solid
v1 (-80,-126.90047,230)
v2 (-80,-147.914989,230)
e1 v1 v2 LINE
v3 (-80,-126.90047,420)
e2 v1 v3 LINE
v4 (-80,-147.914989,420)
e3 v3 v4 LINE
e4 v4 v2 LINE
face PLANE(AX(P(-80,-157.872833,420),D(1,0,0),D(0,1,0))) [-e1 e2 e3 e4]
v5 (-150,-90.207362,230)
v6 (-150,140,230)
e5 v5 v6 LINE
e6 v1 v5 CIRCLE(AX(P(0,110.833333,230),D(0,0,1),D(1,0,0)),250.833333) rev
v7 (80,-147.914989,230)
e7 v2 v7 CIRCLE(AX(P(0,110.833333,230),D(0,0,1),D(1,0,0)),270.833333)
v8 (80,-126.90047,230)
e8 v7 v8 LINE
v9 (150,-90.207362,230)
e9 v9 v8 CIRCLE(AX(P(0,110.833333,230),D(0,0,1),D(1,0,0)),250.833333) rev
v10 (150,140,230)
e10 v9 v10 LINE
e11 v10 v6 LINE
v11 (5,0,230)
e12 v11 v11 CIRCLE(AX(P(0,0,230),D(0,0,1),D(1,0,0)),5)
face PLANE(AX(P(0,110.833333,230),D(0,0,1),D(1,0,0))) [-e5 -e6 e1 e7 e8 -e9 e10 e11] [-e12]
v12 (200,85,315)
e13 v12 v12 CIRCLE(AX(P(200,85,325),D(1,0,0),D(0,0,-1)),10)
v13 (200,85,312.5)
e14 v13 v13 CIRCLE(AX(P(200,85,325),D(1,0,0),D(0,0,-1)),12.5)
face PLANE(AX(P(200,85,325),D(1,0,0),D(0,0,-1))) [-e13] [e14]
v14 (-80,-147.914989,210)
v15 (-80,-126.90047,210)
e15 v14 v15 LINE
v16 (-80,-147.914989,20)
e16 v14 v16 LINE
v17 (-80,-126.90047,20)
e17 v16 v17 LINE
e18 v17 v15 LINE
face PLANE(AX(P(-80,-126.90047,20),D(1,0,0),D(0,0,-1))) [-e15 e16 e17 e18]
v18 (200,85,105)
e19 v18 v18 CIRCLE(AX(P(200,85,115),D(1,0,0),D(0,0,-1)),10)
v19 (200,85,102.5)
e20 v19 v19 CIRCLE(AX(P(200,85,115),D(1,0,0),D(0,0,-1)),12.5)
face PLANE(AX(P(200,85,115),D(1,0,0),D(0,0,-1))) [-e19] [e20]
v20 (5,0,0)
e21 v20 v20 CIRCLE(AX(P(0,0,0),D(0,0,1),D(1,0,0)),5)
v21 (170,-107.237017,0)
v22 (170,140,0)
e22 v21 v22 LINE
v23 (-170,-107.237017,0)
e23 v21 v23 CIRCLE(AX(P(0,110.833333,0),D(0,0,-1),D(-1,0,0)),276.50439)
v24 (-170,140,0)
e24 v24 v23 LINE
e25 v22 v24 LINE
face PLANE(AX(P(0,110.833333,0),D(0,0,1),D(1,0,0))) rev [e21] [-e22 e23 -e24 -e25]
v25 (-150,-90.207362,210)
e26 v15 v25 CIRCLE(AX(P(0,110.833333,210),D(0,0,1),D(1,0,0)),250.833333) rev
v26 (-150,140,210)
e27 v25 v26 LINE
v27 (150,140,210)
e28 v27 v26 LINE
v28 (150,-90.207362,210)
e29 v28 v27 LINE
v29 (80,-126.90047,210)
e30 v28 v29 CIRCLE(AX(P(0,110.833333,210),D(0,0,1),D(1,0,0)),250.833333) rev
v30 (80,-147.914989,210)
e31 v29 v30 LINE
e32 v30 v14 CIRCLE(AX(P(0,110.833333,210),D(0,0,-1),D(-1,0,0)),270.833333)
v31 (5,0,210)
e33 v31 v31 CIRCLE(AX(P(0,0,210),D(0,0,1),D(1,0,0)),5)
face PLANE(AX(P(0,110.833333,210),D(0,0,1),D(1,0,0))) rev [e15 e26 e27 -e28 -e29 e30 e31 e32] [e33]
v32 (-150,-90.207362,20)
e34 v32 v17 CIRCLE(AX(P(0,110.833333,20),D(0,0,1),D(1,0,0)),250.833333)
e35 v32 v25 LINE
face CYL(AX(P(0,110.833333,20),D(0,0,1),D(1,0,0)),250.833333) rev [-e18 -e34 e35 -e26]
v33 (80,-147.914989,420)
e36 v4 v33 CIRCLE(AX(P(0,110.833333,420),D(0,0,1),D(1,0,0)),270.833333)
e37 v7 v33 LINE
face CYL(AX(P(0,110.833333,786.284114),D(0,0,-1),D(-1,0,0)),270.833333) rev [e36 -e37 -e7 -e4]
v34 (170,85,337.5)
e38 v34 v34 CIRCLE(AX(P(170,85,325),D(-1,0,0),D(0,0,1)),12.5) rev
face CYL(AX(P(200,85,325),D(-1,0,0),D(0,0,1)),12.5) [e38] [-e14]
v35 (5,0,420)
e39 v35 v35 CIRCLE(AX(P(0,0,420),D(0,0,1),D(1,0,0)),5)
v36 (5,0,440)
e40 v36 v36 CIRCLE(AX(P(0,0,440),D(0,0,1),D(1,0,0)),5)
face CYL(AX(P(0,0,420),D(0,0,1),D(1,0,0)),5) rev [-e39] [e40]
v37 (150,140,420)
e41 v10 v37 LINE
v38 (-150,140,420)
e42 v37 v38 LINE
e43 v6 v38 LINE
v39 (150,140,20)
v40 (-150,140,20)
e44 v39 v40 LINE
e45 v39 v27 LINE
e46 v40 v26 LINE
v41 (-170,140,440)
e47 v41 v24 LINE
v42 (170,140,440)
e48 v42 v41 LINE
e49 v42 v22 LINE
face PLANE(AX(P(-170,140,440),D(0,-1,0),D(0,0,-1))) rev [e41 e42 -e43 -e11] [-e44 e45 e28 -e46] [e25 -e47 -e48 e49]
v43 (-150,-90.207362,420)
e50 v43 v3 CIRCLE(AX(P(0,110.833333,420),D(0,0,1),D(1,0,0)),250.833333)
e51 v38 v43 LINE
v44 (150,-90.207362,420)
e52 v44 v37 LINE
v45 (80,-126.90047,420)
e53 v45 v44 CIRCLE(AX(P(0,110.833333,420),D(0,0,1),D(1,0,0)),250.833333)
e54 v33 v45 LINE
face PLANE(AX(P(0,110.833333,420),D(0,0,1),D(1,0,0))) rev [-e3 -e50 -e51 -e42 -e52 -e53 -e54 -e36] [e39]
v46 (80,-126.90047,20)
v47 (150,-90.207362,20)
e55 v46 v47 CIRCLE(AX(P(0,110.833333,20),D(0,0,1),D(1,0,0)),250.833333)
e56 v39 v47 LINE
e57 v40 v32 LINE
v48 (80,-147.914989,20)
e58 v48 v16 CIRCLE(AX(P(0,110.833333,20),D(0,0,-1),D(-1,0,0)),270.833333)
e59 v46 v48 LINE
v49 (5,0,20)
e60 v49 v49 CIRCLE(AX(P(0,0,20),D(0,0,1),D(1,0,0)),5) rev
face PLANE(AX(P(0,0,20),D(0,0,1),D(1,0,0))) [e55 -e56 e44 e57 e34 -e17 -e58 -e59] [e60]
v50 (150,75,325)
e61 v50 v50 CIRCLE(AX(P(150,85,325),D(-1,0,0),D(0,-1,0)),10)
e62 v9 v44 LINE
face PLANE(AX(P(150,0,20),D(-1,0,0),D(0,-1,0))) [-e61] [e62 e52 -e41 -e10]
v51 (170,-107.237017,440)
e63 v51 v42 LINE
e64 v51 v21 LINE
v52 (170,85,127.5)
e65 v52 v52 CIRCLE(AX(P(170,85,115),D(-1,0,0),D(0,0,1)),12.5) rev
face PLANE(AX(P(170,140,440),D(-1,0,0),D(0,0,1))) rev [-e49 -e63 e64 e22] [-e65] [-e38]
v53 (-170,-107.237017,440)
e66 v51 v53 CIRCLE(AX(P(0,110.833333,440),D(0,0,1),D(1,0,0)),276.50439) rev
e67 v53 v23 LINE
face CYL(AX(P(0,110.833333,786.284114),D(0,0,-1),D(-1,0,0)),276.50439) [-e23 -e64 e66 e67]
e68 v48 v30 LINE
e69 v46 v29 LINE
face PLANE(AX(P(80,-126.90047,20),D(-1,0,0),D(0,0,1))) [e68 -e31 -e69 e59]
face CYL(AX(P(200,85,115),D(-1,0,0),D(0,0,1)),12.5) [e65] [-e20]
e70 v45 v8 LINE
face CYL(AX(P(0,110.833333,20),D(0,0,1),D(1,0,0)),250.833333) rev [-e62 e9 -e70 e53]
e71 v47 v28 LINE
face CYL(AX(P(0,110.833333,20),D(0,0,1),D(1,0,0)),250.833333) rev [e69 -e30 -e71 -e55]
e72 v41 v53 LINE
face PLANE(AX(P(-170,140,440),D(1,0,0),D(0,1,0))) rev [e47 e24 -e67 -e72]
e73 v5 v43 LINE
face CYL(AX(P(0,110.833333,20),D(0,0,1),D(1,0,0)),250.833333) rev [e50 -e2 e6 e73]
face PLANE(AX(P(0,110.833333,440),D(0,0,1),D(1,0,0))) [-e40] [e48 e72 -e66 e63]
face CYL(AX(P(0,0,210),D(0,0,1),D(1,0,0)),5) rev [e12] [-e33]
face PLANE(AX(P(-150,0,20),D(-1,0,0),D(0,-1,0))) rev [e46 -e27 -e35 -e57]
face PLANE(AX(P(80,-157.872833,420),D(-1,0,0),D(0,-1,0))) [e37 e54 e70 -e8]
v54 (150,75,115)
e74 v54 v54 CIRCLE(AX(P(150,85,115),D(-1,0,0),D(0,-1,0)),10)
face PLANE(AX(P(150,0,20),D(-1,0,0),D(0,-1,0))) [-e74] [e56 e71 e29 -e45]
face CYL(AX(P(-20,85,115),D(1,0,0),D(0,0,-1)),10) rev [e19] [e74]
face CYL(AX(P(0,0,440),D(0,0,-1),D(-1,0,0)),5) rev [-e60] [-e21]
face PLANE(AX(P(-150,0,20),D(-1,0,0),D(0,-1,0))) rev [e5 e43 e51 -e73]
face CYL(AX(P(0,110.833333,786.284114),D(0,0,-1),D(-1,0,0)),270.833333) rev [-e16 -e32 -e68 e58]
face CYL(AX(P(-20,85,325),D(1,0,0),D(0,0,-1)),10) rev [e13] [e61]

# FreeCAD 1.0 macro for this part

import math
import FreeCAD as App
import Part
import Sketcher

V = App.Vector
Q = App.Units.Quantity

doc = App.newDocument("Part")
params = doc.addObject("Spreadsheet::Sheet", "Params")
for row, (alias, value) in enumerate([
    ("sketch1_diameter", "10 mm"),
    ("sketch1_width", "340 mm"),
    ("sketch1_height", "240 mm"),
    ("pad1_length", "440 mm"),
    ("sketch2_diameter", "10 mm"),
    ("sketch2_width", "300 mm"),
    ("pocket1_length", "420 mm"),
    ("sketch3_diameter", "10 mm"),
    ("sketch3_width", "300 mm"),
    ("pad2_length", "20 mm"),
    ("sketch4_diameter", "10 mm"),
    ("sketch4_width", "340 mm"),
    ("sketch4_height", "240 mm"),
    ("pad3_length", "20 mm"),
    ("pocket2_length", "190 mm"),
    ("pocket3_length", "190 mm"),
    ("sketch7_diameter", "20 mm"),
    ("pocket4_length", "190 mm"),
    ("sketch8_diameter", "25 mm"),
    ("sketch8_diameter2", "20 mm"),
    ("pad4_length", "30 mm"),
    ("pad5_length", "440 mm"),
], start=1):
    params.set(f"A{row}", alias)
    params.set(f"B{row}", "=" + value)
    params.setAlias(f"B{row}", alias)

body = doc.addObject("PartDesign::Body", "Body")

sketch1 = doc.addObject("Sketcher::SketchObject", "Sketch")
body.addObject(sketch1)
sketch1.AttachmentSupport = (doc.XY_Plane, [""])
sketch1.MapMode = "FlatFace"
sketch1.addGeometry([
    Part.LineSegment(V(170, 140, 0), V(-170, 140, 0)),
    Part.LineSegment(V(-170, 140, 0), V(-170, -100, 0)),
    Part.ArcOfCircle(Part.Circle(V(0, 111, 0), V(0, 0, 1), 271), math.radians(-129), math.radians(-51)),
    Part.LineSegment(V(170, -100, 0), V(170, 140, 0)),
    Part.Circle(V(0, 0, 0), V(0, 0, 1), 5),
], False)
sketch1.addConstraint([
    Sketcher.Constraint("Coincident", 0, 2, 1, 1),
    Sketcher.Constraint("Coincident", 1, 2, 2, 1),
    Sketcher.Constraint("Coincident", 2, 2, 3, 1),
    Sketcher.Constraint("Coincident", 3, 2, 0, 1),
    Sketcher.Constraint("Horizontal", 0),
    Sketcher.Constraint("Vertical", 1),
    Sketcher.Constraint("Vertical", 3),
    Sketcher.Constraint("Coincident", 4, 3, -1, 1),
    Sketcher.Constraint("Symmetric", 1, 2, 2, 2, -2),
    Sketcher.Constraint("Diameter", 4, Q("10 mm")),
    Sketcher.Constraint("DistanceX", 0, 2, 0, 1, Q("340 mm")),
    Sketcher.Constraint("DistanceY", 1, 2, 1, 1, Q("240 mm")),
    Sketcher.Constraint("DistanceY", -1, 1, 0, 2, Q("140 mm")),
    Sketcher.Constraint("Radius", 2, Q("270.833333 mm")),
])
sketch1.setExpression("Constraints[9]", "Params.sketch1_diameter")
sketch1.setExpression("Constraints[10]", "Params.sketch1_width")
sketch1.setExpression("Constraints[11]", "Params.sketch1_height")
pad1 = doc.addObject("PartDesign::Pad", "Pad")
body.addObject(pad1)
pad1.Profile = sketch1
pad1.setExpression("Length", "Params.pad1_length")

sketch2 = doc.addObject("Sketcher::SketchObject", "Sketch001")
body.addObject(sketch2)
sketch2.AttachmentSupport = (doc.XY_Plane, [""])
sketch2.MapMode = "FlatFace"
sketch2.AttachmentOffset = App.Placement(V(0, 0, 20), App.Rotation())
sketch2.addGeometry([
    Part.LineSegment(V(150, 140, 0), V(-150, 140, 0)),
    Part.LineSegment(V(-150, 140, 0), V(-150, -90, 0)),
    Part.ArcOfCircle(Part.Circle(V(0, 111, 0), V(0, 0, 1), 251), math.radians(-127), math.radians(-53)),
    Part.LineSegment(V(150, -90, 0), V(150, 140, 0)),
    Part.Circle(V(0, 0, 0), V(0, 0, 1), 5),
], False)
sketch2.addConstraint([
    Sketcher.Constraint("Coincident", 0, 2, 1, 1),
    Sketcher.Constraint("Coincident", 1, 2, 2, 1),
    Sketcher.Constraint("Coincident", 2, 2, 3, 1),
    Sketcher.Constraint("Coincident", 3, 2, 0, 1),
    Sketcher.Constraint("Horizontal", 0),
    Sketcher.Constraint("Vertical", 1),
    Sketcher.Constraint("Vertical", 3),
    Sketcher.Constraint("Coincident", 4, 3, -1, 1),
    Sketcher.Constraint("Symmetric", 1, 2, 2, 2, -2),
    Sketcher.Constraint("Diameter", 4, Q("10 mm")),
    Sketcher.Constraint("DistanceX", 0, 2, 0, 1, Q("300 mm")),
    Sketcher.Constraint("DistanceY", -1, 1, 0, 2, Q("140 mm")),
    Sketcher.Constraint("Radius", 2, Q("250.833333 mm")),
    Sketcher.Constraint("DistanceY", 1, 2, 1, 1, Q("230.207362 mm")),
])
sketch2.setExpression("Constraints[9]", "Params.sketch2_diameter")
sketch2.setExpression("Constraints[10]", "Params.sketch2_width")
pocket1 = doc.addObject("PartDesign::Pocket", "Pocket")
body.addObject(pocket1)
pocket1.Profile = sketch2
pocket1.setExpression("Length", "Params.pocket1_length")
pocket1.Reversed = True

sketch3 = doc.addObject("Sketcher::SketchObject", "Sketch002")
body.addObject(sketch3)
sketch3.AttachmentSupport = (doc.XY_Plane, [""])
sketch3.MapMode = "FlatFace"
sketch3.AttachmentOffset = App.Placement(V(0, 0, 420), App.Rotation())
sketch3.addGeometry([
    Part.LineSegment(V(-150, 140, 0), V(-150, -90, 0)),
    Part.ArcOfCircle(Part.Circle(V(0, 111, 0), V(0, 0, 1), 251), math.radians(-127), math.radians(-53)),
    Part.LineSegment(V(150, -90, 0), V(150, 140, 0)),
    Part.LineSegment(V(150, 140, 0), V(-150, 140, 0)),
    Part.Circle(V(0, 0, 0), V(0, 0, 1), 5),
], False)
sketch3.addConstraint([
    Sketcher.Constraint("Coincident", 0, 2, 1, 1),
    Sketcher.Constraint("Coincident", 1, 2, 2, 1),
    Sketcher.Constraint("Coincident", 2, 2, 3, 1),
    Sketcher.Constraint("Coincident", 3, 2, 0, 1),
    Sketcher.Constraint("Vertical", 0),
    Sketcher.Constraint("Vertical", 2),
    Sketcher.Constraint("Horizontal", 3),
    Sketcher.Constraint("Coincident", 4, 3, -1, 1),
    Sketcher.Constraint("Symmetric", 0, 2, 1, 2, -2),
    Sketcher.Constraint("Diameter", 4, Q("10 mm")),
    Sketcher.Constraint("DistanceX", 3, 2, 3, 1, Q("300 mm")),
    Sketcher.Constraint("DistanceY", -1, 1, 2, 2, Q("140 mm")),
    Sketcher.Constraint("Radius", 1, Q("250.833333 mm")),
    Sketcher.Constraint("DistanceY", 0, 2, 0, 1, Q("230.207362 mm")),
])
sketch3.setExpression("Constraints[9]", "Params.sketch3_diameter")
sketch3.setExpression("Constraints[10]", "Params.sketch3_width")
pad2 = doc.addObject("PartDesign::Pad", "Pad001")
body.addObject(pad2)
pad2.Profile = sketch3
pad2.setExpression("Length", "Params.pad2_length")

sketch4 = doc.addObject("Sketcher::SketchObject", "Sketch003")
body.addObject(sketch4)
sketch4.AttachmentSupport = (doc.XY_Plane, [""])
sketch4.MapMode = "FlatFace"
sketch4.AttachmentOffset = App.Placement(V(0, 0, 210), App.Rotation())
sketch4.addGeometry([
    Part.LineSegment(V(-170, 140, 0), V(-170, -100, 0)),
    Part.ArcOfCircle(Part.Circle(V(0, 111, 0), V(0, 0, 1), 271), math.radians(-129), math.radians(-51)),
    Part.LineSegment(V(170, -100, 0), V(170, 140, 0)),
    Part.LineSegment(V(170, 140, 0), V(-170, 140, 0)),
    Part.Circle(V(0, 0, 0), V(0, 0, 1), 5),
], False)
sketch4.addConstraint([
    Sketcher.Constraint("Coincident", 0, 2, 1, 1),
    Sketcher.Constraint("Coincident", 1, 2, 2, 1),
    Sketcher.Constraint("Coincident", 2, 2, 3, 1),
    Sketcher.Constraint("Coincident", 3, 2, 0, 1),
    Sketcher.Constraint("Vertical", 0),
    Sketcher.Constraint("Vertical", 2),
    Sketcher.Constraint("Horizontal", 3),
    Sketcher.Constraint("Coincident", 4, 3, -1, 1),
    Sketcher.Constraint("Symmetric", 0, 2, 1, 2, -2),
    Sketcher.Constraint("Diameter", 4, Q("10 mm")),
    Sketcher.Constraint("DistanceX", 3, 2, 3, 1, Q("340 mm")),
    Sketcher.Constraint("DistanceY", 0, 2, 0, 1, Q("240 mm")),
    Sketcher.Constraint("DistanceY", 0, 2, -1, 1, Q("100 mm")),
    Sketcher.Constraint("Radius", 1, Q("270.833333 mm")),
])
sketch4.setExpression("Constraints[9]", "Params.sketch4_diameter")
sketch4.setExpression("Constraints[10]", "Params.sketch4_width")
sketch4.setExpression("Constraints[11]", "Params.sketch4_height")
pad3 = doc.addObject("PartDesign::Pad", "Pad002")
body.addObject(pad3)
pad3.Profile = sketch4
pad3.setExpression("Length", "Params.pad3_length")

sketch5 = doc.addObject("Sketcher::SketchObject", "Sketch004")
body.addObject(sketch5)
sketch5.AttachmentSupport = (doc.XY_Plane, [""])
sketch5.MapMode = "FlatFace"
sketch5.AttachmentOffset = App.Placement(V(0, 0, 230), App.Rotation())
sketch5.addGeometry([
    Part.LineSegment(V(-80, -126, 0), V(-80, -158, 0)),
    Part.ArcOfCircle(Part.Circle(V(0, 111, 0), V(0, 0, 1), 280), math.radians(-107), math.radians(-73)),
    Part.LineSegment(V(80, -158, 0), V(80, -126, 0)),
    Part.ArcOfCircle(Part.Circle(V(0, 111, 0), V(0, 0, 1), 250), math.radians(-109), math.radians(-71)),
], False)
sketch5.addConstraint([
    Sketcher.Constraint("Coincident", 0, 2, 1, 1),
    Sketcher.Constraint("Coincident", 1, 2, 2, 1),
    Sketcher.Constraint("Coincident", 2, 2, 3, 2),
    Sketcher.Constraint("Coincident", 3, 1, 0, 1),
    Sketcher.Constraint("Vertical", 0),
    Sketcher.Constraint("Vertical", 2),
    Sketcher.Constraint("Coincident", 3, 3, 1, 3),
    Sketcher.Constraint("Symmetric", 0, 2, 1, 2, -2),
    Sketcher.Constraint("DistanceX", 0, 2, -1, 1, Q("80 mm")),
    Sketcher.Constraint("Radius", 1, Q("280.362272 mm")),
    Sketcher.Constraint("Radius", 3, Q("250.362272 mm")),
    Sketcher.Constraint("DistanceY", 2, 2, -1, 1, Q("126.403399 mm")),
])
pocket2 = doc.addObject("PartDesign::Pocket", "Pocket001")
body.addObject(pocket2)
pocket2.Profile = sketch5
pocket2.setExpression("Length", "Params.pocket2_length")
pocket2.Reversed = True

sketch6 = doc.addObject("Sketcher::SketchObject", "Sketch005")
body.addObject(sketch6)
sketch6.AttachmentSupport = (doc.XY_Plane, [""])
sketch6.MapMode = "FlatFace"
sketch6.AttachmentOffset = App.Placement(V(0, 0, 20), App.Rotation())
sketch6.addGeometry([
    Part.LineSegment(V(80, -127, 0), V(80, -161, 0)),
    Part.ArcOfCircle(Part.Circle(V(0, 111, 0), V(0, 0, 1), 283), math.radians(-106), math.radians(-74)),
    Part.LineSegment(V(-80, -161, 0), V(-80, -127, 0)),
    Part.ArcOfCircle(Part.Circle(V(0, 111, 0), V(0, 0, 1), 251), math.radians(-109), math.radians(-71)),
], False)
sketch6.addConstraint([
    Sketcher.Constraint("Coincident", 0, 2, 1, 2),
    Sketcher.Constraint("Coincident", 1, 1, 2, 1),
    Sketcher.Constraint("Coincident", 2, 2, 3, 1),
    Sketcher.Constraint("Coincident", 3, 2, 0, 1),
    Sketcher.Constraint("Vertical", 0),
    Sketcher.Constraint("Vertical", 2),
    Sketcher.Constraint("Coincident", 3, 3, 1, 3),
    Sketcher.Constraint("Symmetric", 0, 2, 1, 1, -2),
    Sketcher.Constraint("DistanceX", -1, 1, 0, 2, Q("80 mm")),
    Sketcher.Constraint("Radius", 1, Q("283.047495 mm")),
    Sketcher.Constraint("Radius", 3, Q("250.833333 mm")),
    Sketcher.Constraint("DistanceY", 0, 2, -1, 1, Q("160.67336 mm")),
])
pocket3 = doc.addObject("PartDesign::Pocket", "Pocket002")
body.addObject(pocket3)
pocket3.Profile = sketch6
pocket3.setExpression("Length", "Params.pocket3_length")
pocket3.Reversed = True

sketch7 = doc.addObject("Sketcher::SketchObject", "Sketch006")
body.addObject(sketch7)
sketch7.AttachmentSupport = (doc.YZ_Plane, [""])
sketch7.MapMode = "FlatFace"
sketch7.AttachmentOffset = App.Placement(V(0, 0, 170), App.Rotation())
sketch7.addGeometry([
    Part.Circle(V(85, 325, 0), V(0, 0, 1), 10),
    Part.Circle(V(85, 115, 0), V(0, 0, 1), 10),
], False)
sketch7.addConstraint([
    Sketcher.Constraint("Equal", 0, 1),
    Sketcher.Constraint("Vertical", 0, 3, 1, 3),
    Sketcher.Constraint("Diameter", 0, Q("20 mm")),
    Sketcher.Constraint("DistanceX", -1, 1, 0, 3, Q("85 mm")),
    Sketcher.Constraint("DistanceY", -1, 1, 0, 3, Q("325 mm")),
    Sketcher.Constraint("DistanceY", -1, 1, 1, 3, Q("115 mm")),
])
sketch7.setExpression("Constraints[2]", "Params.sketch7_diameter")
pocket4 = doc.addObject("PartDesign::Pocket", "Pocket003")
body.addObject(pocket4)
pocket4.Profile = sketch7
pocket4.setExpression("Length", "Params.pocket4_length")

sketch8 = doc.addObject("Sketcher::SketchObject", "Sketch007")
body.addObject(sketch8)
sketch8.AttachmentSupport = (doc.YZ_Plane, [""])
sketch8.MapMode = "FlatFace"
sketch8.AttachmentOffset = App.Placement(V(0, 0, 200), App.Rotation())
sketch8.addGeometry([
    Part.Circle(V(85, 325, 0), V(0, 0, 1), 12),
    Part.Circle(V(85, 325, 0), V(0, 0, 1), 10),
    Part.Circle(V(85, 115, 0), V(0, 0, 1), 12),
    Part.Circle(V(85, 115, 0), V(0, 0, 1), 10),
], False)
sketch8.addConstraint([
    Sketcher.Constraint("Coincident", 1, 3, 0, 3),
    Sketcher.Constraint("Coincident", 3, 3, 2, 3),
    Sketcher.Constraint("Equal", 0, 2),
    Sketcher.Constraint("Equal", 1, 3),
    Sketcher.Constraint("Vertical", 1, 3, 2, 3),
    Sketcher.Constraint("Diameter", 0, Q("25 mm")),
    Sketcher.Constraint("Diameter", 1, Q("20 mm")),
    Sketcher.Constraint("DistanceX", -1, 1, 0, 3, Q("85 mm")),
    Sketcher.Constraint("DistanceY", -1, 1, 0, 3, Q("325 mm")),
    Sketcher.Constraint("DistanceY", -1, 1, 2, 3, Q("115 mm")),
])
sketch8.setExpression("Constraints[5]", "Params.sketch8_diameter")
sketch8.setExpression("Constraints[6]", "Params.sketch8_diameter2")
pad4 = doc.addObject("PartDesign::Pad", "Pad003")
body.addObject(pad4)
pad4.Profile = sketch8
pad4.setExpression("Length", "Params.pad4_length")
pad4.Reversed = True

sketch9 = doc.addObject("Sketcher::SketchObject", "Sketch008")
body.addObject(sketch9)
sketch9.AttachmentSupport = (doc.XY_Plane, [""])
sketch9.MapMode = "FlatFace"
sketch9.addGeometry([
    Part.LineSegment(V(170, -100, 0), V(170, -107, 0)),
    Part.ArcOfCircle(Part.Circle(V(0, 111, 0), V(0, 0, 1), 277), math.radians(-128), math.radians(-52)),
    Part.LineSegment(V(-170, -107, 0), V(-170, -100, 0)),
    Part.ArcOfCircle(Part.Circle(V(0, 111, 0), V(0, 0, 1), 271), math.radians(-129), math.radians(-51)),
], False)
sketch9.addConstraint([
    Sketcher.Constraint("Coincident", 0, 2, 1, 2),
    Sketcher.Constraint("Coincident", 1, 1, 2, 1),
    Sketcher.Constraint("Coincident", 2, 2, 3, 1),
    Sketcher.Constraint("Coincident", 3, 2, 0, 1),
    Sketcher.Constraint("Vertical", 0),
    Sketcher.Constraint("Vertical", 2),
    Sketcher.Constraint("Coincident", 3, 3, 1, 3),
    Sketcher.Constraint("Symmetric", 0, 2, 1, 1, -2),
    Sketcher.Constraint("DistanceX", -1, 1, 0, 2, Q("170 mm")),
    Sketcher.Constraint("DistanceY", 2, 2, -1, 1, Q("100 mm")),
    Sketcher.Constraint("Radius", 1, Q("276.50439 mm")),
    Sketcher.Constraint("Radius", 3, Q("270.833333 mm")),
])
pad5 = doc.addObject("PartDesign::Pad", "Pad004")
body.addObject(pad5)
pad5.Profile = sketch9
pad5.setExpression("Length", "Params.pad5_length")

doc.recompute()
